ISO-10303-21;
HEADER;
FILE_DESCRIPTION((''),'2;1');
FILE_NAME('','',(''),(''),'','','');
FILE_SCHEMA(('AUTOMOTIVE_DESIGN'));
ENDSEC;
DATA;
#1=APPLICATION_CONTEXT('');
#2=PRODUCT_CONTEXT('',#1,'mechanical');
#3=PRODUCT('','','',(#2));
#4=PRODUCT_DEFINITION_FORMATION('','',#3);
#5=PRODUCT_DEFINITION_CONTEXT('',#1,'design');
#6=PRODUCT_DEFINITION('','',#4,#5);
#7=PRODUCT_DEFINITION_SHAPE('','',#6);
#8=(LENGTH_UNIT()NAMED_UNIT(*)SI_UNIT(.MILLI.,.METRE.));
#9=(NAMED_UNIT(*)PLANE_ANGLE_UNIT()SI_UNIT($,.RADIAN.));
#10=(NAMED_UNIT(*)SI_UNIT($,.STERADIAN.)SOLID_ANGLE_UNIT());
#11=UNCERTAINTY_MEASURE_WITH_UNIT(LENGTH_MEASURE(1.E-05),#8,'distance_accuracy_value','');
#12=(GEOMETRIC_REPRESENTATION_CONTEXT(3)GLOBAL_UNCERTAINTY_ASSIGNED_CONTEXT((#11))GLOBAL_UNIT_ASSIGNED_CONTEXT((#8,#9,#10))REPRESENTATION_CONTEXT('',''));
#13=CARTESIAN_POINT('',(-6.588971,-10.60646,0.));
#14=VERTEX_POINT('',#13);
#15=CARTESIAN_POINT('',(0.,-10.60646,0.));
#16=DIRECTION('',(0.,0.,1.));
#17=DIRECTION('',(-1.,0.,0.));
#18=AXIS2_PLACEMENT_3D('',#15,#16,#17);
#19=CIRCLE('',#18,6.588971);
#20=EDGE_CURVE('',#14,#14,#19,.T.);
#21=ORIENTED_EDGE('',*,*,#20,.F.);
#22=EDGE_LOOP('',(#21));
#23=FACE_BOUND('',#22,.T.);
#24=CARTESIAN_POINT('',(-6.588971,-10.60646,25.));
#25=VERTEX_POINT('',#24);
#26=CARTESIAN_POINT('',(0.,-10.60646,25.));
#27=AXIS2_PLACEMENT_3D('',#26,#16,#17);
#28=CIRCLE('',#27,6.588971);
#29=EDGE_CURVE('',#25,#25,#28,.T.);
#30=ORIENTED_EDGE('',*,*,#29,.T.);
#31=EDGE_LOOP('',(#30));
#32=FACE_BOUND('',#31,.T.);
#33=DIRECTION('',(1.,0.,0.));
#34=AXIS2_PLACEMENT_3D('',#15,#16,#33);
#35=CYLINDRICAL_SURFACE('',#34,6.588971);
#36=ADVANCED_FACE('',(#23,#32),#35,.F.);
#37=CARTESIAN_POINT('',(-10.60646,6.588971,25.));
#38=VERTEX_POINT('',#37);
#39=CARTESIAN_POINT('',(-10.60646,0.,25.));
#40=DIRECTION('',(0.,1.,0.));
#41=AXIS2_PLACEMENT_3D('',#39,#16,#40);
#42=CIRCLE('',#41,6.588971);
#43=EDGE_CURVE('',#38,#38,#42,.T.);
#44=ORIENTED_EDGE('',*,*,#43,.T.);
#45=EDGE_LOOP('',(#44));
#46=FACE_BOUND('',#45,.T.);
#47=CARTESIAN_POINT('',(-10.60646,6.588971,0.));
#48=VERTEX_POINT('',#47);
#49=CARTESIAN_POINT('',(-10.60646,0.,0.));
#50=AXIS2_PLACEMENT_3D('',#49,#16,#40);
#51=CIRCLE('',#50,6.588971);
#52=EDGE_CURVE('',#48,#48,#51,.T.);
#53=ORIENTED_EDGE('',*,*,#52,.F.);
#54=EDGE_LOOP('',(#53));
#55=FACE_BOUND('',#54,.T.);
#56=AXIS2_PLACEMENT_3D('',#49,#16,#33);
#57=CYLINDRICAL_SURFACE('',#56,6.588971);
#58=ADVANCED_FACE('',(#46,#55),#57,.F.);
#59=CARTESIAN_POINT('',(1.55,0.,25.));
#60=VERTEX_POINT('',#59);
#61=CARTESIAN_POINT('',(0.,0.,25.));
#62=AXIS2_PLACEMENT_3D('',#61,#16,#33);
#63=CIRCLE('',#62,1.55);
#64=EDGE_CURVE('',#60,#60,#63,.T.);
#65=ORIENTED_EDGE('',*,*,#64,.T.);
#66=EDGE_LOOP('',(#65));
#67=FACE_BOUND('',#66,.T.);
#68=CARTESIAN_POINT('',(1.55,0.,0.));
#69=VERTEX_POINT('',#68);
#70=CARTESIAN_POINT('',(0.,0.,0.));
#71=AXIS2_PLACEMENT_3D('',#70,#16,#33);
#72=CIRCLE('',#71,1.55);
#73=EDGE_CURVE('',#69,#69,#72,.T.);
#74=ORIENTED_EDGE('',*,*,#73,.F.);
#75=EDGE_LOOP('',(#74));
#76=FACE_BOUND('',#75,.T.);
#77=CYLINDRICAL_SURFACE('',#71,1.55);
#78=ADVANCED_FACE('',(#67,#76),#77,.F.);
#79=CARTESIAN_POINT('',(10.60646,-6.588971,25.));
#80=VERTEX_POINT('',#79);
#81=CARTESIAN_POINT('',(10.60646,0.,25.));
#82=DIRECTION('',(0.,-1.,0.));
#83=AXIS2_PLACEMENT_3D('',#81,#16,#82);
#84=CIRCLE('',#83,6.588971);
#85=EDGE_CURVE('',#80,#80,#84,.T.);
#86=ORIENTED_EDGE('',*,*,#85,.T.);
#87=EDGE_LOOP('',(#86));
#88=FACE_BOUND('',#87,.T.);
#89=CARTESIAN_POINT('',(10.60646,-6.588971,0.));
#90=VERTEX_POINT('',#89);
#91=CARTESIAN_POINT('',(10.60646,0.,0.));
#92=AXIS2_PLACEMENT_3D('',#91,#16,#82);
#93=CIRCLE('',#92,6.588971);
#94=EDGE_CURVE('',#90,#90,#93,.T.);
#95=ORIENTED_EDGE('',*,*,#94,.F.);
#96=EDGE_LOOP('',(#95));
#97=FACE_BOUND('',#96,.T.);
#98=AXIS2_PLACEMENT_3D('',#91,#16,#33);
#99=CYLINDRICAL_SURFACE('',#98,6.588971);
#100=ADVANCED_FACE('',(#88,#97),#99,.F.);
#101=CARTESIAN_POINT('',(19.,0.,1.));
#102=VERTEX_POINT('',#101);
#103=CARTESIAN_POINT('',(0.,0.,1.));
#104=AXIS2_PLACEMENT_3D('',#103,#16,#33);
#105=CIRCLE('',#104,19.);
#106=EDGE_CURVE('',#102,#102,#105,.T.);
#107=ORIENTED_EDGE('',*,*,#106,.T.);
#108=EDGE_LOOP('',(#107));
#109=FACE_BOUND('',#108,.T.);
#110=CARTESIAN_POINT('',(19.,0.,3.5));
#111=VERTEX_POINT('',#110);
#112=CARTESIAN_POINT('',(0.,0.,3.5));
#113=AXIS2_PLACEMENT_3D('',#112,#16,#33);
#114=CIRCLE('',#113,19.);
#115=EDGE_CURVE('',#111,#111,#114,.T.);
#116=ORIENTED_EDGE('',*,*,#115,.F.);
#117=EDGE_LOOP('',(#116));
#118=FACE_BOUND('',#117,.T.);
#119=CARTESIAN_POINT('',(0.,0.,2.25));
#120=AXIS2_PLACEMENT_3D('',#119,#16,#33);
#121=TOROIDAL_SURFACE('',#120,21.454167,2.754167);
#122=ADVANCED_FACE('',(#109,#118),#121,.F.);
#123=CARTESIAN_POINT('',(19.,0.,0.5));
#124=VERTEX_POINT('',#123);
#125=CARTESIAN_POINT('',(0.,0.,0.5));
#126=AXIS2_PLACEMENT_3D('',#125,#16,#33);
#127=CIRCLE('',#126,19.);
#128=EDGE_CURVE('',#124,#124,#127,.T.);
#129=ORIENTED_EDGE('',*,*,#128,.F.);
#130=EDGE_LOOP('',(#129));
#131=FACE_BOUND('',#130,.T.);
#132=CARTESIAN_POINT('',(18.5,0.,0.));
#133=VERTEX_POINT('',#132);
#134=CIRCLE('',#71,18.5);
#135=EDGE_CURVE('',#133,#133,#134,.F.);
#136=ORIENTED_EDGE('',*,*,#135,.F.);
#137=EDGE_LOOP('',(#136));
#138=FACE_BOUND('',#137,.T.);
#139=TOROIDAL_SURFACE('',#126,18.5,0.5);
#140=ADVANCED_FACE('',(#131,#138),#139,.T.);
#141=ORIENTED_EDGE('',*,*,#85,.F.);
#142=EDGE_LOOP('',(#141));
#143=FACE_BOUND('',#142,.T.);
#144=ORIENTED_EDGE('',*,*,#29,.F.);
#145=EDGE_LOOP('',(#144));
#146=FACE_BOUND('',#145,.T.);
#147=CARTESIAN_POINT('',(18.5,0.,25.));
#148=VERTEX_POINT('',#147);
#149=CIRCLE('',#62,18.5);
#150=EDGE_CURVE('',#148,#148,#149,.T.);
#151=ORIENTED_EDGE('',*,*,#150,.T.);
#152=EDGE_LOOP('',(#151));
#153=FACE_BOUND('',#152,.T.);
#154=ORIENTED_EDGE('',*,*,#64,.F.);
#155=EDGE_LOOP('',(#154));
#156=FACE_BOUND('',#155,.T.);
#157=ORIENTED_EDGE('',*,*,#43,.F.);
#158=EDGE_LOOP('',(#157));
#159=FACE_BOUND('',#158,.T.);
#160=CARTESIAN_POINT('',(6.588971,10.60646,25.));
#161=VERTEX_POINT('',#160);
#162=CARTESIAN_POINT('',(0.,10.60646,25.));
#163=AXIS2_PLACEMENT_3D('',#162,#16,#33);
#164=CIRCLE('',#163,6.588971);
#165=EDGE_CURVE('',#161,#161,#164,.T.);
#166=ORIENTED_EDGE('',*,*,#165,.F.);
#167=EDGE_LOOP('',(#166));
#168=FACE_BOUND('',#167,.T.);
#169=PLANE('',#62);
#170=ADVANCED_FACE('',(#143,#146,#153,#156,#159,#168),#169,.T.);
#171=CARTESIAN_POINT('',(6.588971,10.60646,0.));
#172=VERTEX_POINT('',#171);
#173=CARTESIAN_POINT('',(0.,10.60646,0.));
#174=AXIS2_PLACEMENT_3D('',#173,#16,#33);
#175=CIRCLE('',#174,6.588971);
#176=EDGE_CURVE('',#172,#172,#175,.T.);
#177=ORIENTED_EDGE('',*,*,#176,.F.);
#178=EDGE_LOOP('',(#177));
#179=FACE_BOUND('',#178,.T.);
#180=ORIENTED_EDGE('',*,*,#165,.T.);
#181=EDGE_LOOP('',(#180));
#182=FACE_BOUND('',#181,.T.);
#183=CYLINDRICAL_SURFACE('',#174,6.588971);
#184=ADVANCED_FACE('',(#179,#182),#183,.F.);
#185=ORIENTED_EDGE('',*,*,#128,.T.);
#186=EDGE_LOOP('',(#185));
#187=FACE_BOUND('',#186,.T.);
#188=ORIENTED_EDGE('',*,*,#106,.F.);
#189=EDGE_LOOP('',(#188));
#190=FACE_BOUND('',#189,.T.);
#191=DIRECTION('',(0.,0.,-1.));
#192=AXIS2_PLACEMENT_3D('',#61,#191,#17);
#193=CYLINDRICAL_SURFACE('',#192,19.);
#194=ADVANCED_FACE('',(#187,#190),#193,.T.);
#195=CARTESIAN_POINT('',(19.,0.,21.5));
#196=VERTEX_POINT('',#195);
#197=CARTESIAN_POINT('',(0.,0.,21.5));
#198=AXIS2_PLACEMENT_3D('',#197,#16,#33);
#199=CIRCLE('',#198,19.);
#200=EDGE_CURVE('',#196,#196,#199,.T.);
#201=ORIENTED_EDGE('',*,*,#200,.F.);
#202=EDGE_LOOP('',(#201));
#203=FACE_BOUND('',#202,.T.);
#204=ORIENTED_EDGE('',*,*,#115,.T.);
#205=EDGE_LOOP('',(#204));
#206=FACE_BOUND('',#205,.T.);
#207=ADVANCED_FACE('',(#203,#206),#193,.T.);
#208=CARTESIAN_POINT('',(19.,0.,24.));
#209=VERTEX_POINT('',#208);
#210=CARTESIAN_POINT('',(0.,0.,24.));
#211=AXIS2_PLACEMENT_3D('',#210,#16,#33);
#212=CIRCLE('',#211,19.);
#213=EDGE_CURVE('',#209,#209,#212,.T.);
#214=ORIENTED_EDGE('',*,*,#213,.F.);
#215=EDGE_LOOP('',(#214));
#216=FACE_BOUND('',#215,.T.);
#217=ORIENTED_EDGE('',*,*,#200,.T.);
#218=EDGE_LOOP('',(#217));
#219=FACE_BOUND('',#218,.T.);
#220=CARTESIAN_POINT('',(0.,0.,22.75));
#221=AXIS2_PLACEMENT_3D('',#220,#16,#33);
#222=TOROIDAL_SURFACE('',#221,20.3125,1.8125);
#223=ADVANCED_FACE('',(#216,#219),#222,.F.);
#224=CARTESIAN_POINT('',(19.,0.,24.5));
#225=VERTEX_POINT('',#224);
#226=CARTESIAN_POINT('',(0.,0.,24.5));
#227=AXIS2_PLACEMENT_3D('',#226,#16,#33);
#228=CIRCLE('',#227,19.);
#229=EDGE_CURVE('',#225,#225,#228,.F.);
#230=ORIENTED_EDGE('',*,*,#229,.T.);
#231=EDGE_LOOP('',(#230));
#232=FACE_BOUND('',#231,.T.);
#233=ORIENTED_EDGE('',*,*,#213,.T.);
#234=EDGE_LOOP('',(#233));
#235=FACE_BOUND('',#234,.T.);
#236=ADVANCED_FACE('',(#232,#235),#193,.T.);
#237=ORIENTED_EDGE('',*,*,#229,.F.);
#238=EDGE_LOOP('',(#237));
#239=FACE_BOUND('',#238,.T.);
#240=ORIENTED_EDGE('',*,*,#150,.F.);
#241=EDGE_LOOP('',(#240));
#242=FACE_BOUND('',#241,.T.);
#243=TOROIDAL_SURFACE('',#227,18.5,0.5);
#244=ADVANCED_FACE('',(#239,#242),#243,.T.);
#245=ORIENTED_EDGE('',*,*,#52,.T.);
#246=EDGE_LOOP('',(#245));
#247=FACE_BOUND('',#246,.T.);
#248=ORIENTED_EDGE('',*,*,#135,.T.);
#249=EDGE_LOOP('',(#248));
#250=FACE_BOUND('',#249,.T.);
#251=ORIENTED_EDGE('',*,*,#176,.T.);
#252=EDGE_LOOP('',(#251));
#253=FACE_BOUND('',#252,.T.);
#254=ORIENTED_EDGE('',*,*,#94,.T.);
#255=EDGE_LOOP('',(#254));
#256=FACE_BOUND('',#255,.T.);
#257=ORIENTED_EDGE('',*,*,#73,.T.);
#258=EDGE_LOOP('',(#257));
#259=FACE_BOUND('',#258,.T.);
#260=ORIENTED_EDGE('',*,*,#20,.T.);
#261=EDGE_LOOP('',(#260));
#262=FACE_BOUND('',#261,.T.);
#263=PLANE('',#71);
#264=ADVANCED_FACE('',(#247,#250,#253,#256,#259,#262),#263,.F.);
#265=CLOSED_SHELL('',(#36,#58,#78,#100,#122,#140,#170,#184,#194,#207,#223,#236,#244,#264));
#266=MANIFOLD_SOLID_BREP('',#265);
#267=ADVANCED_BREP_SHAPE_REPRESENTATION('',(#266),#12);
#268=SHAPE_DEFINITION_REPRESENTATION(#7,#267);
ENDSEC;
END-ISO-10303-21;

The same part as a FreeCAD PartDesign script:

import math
import FreeCAD as App
import Part
import Sketcher

V = App.Vector
Q = App.Units.Quantity


def edges_at(feature, points):
    """Names of the edges that pass closest to the given points."""
    edges = feature.Shape.Edges
    near = lambda p: min(range(len(edges)), key=lambda i: edges[i].distToShape(Part.Vertex(*p))[0])
    return sorted({f"Edge{near(p) + 1}" for p in points})

doc = App.newDocument("Part")
body = doc.addObject("PartDesign::Body", "Body")

# Sketch on XY plane
sketch1 = body.newObject("Sketcher::SketchObject", "Sketch")
sketch1.AttachmentSupport = (doc.getObject("XY_Plane"), [""])
sketch1.MapMode = "FlatFace"
sketch1.addGeometry(Part.Circle(V(0, 0, 0), V(0, 0, 1), 19), False)
sketch1.addConstraint([
    Sketcher.Constraint("Coincident", 0, 3, -1, 1),
    Sketcher.Constraint("Diameter", 0, Q("38 mm")),
])
pad1 = body.newObject("PartDesign::Pad", "Pad")
pad1.Profile = sketch1
pad1.Length = 25

# Sketch on YZ plane
sketch2 = body.newObject("Sketcher::SketchObject", "Sketch001")
sketch2.AttachmentSupport = (doc.getObject("YZ_Plane"), [""])
sketch2.MapMode = "FlatFace"
sketch2.addGeometry([
    Part.LineSegment(V(19, 21.5, 0), V(19, 24, 0)),
    Part.ArcOfCircle(Part.Circle(V(20.3, 22.8, 0), V(0, 0, 1), 1.8), math.radians(136), math.radians(224)),
    Part.LineSegment(V(19, 1, 0), V(19, 3.5, 0)),
    Part.ArcOfCircle(Part.Circle(V(21.5, 2.2, 0), V(0, 0, 1), 2.8), math.radians(153), math.radians(207)),
], False)
sketch2.addConstraint([
    Sketcher.Constraint("Coincident", 0, 1, 1, 2),
    Sketcher.Constraint("Coincident", 1, 1, 0, 2),
    Sketcher.Constraint("Coincident", 2, 1, 3, 2),
    Sketcher.Constraint("Coincident", 3, 1, 2, 2),
    Sketcher.Constraint("Vertical", 0),
    Sketcher.Constraint("Vertical", 2),
    Sketcher.Constraint("Vertical", 1, 1, 2, 1),
    Sketcher.Constraint("Equal", 0, 2),
    Sketcher.Constraint("DistanceY", 0, 1, 0, 2, Q("2.5 mm")),
    Sketcher.Constraint("DistanceX", -1, 1, 0, 1, Q("19 mm")),
    Sketcher.Constraint("DistanceY", -1, 1, 1, 1, Q("24 mm")),
    Sketcher.Constraint("DistanceY", -1, 1, 2, 1, Q("1 mm")),
    Sketcher.Constraint("Radius", 1, Q("1.8125 mm")),
    Sketcher.Constraint("Radius", 3, Q("2.754167 mm")),
])
groove = body.newObject("PartDesign::Groove", "Groove")
groove.Profile = sketch2
groove.ReferenceAxis = (sketch2, ["V_Axis"])
groove.Angle = 360
doc.recompute()

fillet = body.newObject("PartDesign::Fillet", "Fillet")
fillet.Base = (groove, edges_at(groove, [(-19, 0, 0), (-19, 0, 25)]))
fillet.Radius = 0.5

# Sketch on XY plane
sketch3 = body.newObject("Sketcher::SketchObject", "Sketch002")
sketch3.AttachmentSupport = (doc.getObject("XY_Plane"), [""])
sketch3.MapMode = "FlatFace"
sketch3.AttachmentOffset = App.Placement(V(0, 0, 25), App.Rotation())
sketch3.addGeometry(Part.Circle(V(0, 0, 0), V(0, 0, 1), 1.6), False)
sketch3.addConstraint([
    Sketcher.Constraint("Coincident", 0, 3, -1, 1),
    Sketcher.Constraint("Diameter", 0, Q("3.1 mm")),
])
pocket1 = body.newObject("PartDesign::Pocket", "Pocket")
pocket1.Profile = sketch3
pocket1.Type = "ThroughAll"

# Sketch on XY plane
sketch4 = body.newObject("Sketcher::SketchObject", "Sketch003")
sketch4.AttachmentSupport = (doc.getObject("XY_Plane"), [""])
sketch4.MapMode = "FlatFace"
sketch4.AttachmentOffset = App.Placement(V(0, 0, 25), App.Rotation())
sketch4.addGeometry(Part.Circle(V(0, 11, 0), V(0, 0, 1), 7), False)
sketch4.addConstraint([
    Sketcher.Constraint("PointOnObject", 0, 3, -2),
    Sketcher.Constraint("Diameter", 0, Q("13.177942 mm")),
    Sketcher.Constraint("DistanceY", -1, 1, 0, 3, Q("10.60646 mm")),
])
pocket2 = body.newObject("PartDesign::Pocket", "Pocket001")
pocket2.Profile = sketch4
pocket2.Type = "ThroughAll"
doc.recompute()

polarpattern = body.newObject("PartDesign::PolarPattern", "PolarPattern")
polarpattern.Originals = [pocket2]
polarpattern.Axis = (doc.getObject("Z_Axis"), [""])
polarpattern.Angle = 360
polarpattern.Occurrences = 4
body.Tip = polarpattern

doc.recompute()
